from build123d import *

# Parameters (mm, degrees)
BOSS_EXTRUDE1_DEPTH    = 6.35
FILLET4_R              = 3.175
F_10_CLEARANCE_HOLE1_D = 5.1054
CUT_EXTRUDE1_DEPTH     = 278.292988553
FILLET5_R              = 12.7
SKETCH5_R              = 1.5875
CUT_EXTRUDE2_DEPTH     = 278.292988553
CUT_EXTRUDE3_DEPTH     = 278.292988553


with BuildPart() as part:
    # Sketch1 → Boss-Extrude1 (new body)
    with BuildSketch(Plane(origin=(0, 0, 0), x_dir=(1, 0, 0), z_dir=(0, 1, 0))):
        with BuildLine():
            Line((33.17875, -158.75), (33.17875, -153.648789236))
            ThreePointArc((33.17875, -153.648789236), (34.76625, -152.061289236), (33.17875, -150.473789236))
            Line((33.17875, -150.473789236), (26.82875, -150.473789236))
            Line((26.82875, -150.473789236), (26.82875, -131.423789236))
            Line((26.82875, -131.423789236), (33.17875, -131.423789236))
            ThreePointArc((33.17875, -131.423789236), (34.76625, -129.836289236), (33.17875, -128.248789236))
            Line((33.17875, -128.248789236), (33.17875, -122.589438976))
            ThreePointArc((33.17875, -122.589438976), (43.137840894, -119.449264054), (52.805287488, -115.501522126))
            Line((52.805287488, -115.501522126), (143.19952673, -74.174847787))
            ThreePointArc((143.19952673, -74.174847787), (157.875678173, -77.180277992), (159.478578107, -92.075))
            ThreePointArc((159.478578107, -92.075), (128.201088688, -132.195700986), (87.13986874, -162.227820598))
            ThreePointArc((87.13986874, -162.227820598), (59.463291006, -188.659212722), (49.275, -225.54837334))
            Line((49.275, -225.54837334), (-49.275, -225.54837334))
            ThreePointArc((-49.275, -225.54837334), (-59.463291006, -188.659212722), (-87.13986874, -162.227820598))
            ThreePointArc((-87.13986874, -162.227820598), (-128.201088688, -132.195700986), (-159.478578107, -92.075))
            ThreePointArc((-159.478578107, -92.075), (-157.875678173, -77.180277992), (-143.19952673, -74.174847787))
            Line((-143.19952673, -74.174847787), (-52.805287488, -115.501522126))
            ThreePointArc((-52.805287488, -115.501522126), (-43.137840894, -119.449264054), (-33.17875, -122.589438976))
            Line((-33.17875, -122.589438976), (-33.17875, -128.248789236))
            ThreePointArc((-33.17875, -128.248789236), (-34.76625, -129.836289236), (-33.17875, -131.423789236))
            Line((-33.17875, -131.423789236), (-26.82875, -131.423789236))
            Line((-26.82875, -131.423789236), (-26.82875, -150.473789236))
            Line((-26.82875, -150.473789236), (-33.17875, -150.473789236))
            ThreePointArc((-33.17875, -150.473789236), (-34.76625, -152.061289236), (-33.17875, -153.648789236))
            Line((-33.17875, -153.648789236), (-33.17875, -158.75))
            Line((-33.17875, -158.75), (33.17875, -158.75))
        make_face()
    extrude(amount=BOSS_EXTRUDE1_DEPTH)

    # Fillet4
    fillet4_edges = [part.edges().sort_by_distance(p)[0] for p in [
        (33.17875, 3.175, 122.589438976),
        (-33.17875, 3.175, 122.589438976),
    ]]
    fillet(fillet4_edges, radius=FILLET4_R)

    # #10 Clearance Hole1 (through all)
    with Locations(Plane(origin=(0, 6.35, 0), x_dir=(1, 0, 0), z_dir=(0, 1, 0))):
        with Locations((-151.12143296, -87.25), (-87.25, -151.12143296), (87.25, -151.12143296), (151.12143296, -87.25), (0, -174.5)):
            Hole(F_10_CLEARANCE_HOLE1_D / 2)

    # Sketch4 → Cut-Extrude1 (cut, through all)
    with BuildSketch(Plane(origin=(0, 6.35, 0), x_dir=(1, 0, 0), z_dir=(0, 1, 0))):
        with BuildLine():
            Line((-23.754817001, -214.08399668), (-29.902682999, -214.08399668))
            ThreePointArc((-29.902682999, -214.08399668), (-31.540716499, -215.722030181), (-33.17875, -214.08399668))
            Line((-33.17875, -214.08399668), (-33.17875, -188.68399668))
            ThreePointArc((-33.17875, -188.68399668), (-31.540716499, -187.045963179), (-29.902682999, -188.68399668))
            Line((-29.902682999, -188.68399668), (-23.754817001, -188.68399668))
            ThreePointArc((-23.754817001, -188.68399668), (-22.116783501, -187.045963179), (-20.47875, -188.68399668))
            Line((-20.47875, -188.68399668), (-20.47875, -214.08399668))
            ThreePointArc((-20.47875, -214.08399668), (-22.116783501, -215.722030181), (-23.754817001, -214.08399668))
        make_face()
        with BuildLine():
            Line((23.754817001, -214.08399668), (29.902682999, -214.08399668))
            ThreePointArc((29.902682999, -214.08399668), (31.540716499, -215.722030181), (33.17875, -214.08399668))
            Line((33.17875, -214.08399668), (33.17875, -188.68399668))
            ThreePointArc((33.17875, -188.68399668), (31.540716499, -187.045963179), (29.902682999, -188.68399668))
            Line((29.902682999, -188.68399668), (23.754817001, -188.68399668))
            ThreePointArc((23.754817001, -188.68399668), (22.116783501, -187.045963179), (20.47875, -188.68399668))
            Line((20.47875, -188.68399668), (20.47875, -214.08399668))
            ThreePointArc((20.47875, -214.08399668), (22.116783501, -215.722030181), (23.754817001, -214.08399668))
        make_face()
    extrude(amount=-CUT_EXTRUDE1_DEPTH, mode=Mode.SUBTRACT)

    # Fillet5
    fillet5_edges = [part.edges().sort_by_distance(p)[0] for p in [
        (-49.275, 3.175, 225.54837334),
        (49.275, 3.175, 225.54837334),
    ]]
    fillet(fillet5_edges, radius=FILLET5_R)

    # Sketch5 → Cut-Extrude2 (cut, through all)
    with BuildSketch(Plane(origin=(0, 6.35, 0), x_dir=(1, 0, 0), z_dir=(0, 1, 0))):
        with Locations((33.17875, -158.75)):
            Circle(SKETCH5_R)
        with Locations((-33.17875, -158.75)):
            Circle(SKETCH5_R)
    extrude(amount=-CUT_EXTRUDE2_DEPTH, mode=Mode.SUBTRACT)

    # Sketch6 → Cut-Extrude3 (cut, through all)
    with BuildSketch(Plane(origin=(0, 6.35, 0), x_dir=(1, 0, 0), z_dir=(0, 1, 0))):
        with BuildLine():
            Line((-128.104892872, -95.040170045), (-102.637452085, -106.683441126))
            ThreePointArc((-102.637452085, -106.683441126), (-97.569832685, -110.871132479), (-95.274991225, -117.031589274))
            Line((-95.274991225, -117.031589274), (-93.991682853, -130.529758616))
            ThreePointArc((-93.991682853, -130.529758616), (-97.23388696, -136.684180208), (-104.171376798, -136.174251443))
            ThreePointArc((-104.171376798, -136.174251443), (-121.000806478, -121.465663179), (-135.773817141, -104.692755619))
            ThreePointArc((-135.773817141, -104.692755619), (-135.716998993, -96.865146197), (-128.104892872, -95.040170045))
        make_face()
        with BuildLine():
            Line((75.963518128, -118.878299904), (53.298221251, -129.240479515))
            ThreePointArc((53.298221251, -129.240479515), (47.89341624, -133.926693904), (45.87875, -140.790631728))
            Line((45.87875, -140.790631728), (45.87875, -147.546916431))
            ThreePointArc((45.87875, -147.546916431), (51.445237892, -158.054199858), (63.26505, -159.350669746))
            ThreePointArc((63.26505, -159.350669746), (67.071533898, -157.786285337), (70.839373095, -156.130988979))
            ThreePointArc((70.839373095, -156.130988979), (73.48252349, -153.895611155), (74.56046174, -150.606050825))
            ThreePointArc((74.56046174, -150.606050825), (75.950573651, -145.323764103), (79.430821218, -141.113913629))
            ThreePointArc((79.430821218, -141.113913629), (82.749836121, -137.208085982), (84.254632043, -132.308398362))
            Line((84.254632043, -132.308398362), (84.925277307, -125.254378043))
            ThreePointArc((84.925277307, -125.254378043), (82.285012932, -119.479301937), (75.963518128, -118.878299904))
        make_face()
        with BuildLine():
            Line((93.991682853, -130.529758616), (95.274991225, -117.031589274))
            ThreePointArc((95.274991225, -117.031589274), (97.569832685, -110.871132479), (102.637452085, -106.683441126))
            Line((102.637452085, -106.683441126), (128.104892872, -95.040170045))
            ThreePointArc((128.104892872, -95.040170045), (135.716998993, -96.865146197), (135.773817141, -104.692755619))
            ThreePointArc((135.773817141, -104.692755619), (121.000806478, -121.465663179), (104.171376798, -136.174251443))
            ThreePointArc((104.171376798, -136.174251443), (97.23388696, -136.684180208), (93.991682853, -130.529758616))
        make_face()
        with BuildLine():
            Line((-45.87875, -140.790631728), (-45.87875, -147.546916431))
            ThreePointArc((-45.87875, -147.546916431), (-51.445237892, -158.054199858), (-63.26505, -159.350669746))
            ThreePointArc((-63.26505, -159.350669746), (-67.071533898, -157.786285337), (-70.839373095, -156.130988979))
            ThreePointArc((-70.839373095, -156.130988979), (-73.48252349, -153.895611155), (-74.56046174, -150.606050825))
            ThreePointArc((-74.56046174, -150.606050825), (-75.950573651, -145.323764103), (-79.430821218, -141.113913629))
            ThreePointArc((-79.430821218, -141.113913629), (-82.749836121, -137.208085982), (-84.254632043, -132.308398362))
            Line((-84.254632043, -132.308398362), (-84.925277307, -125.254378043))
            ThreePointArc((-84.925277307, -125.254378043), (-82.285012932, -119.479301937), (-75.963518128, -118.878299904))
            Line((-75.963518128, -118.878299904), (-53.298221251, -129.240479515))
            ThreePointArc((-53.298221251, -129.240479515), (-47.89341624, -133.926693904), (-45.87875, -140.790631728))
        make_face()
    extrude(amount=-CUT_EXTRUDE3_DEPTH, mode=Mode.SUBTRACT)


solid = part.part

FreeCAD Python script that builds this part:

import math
import FreeCAD as App
import Part
import Sketcher
from FreeCAD import Vector
Q = App.Units.Quantity


def edges_at(feature, points):
    """Names of the edges that pass closest to the given points."""
    edges = feature.Shape.Edges
    near = lambda p: min(range(len(edges)), key=lambda i: edges[i].distToShape(Part.Vertex(*p))[0])
    return sorted({f"Edge{near(p) + 1}" for p in points})

doc = App.newDocument("Part")
body = doc.addObject("PartDesign::Body", "Body")

# Sketch on XZ plane
sketch1 = doc.addObject("Sketcher::SketchObject", "Sketch")
body.addObject(sketch1)
sketch1.AttachmentSupport = (doc.XZ_Plane, [""])
sketch1.MapMode = "FlatFace"
sketch1.addGeometry(Part.LineSegment(Vector(33.17875, 153.648789, 0), Vector(33.17875, 158.75, 0)), False)
sketch1.addGeometry(Part.LineSegment(Vector(33.17875, 158.75, 0), Vector(-33.17875, 158.75, 0)), False)
sketch1.addGeometry(Part.LineSegment(Vector(-33.17875, 158.75, 0), Vector(-33.17875, 153.648789, 0)), False)
sketch1.addGeometry(Part.ArcOfCircle(Part.Circle(Vector(-33.17875, 152.061289, 0), Vector(0, 0, 1), 1.5875), math.radians(90), math.radians(270)), False)
sketch1.addGeometry(Part.LineSegment(Vector(-33.17875, 150.473789, 0), Vector(-26.82875, 150.473789, 0)), False)
sketch1.addGeometry(Part.LineSegment(Vector(-26.82875, 150.473789, 0), Vector(-26.82875, 131.423789, 0)), False)
sketch1.addGeometry(Part.LineSegment(Vector(-26.82875, 131.423789, 0), Vector(-33.17875, 131.423789, 0)), False)
sketch1.addGeometry(Part.ArcOfCircle(Part.Circle(Vector(-33.17875, 129.836289, 0), Vector(0, 0, 1), 1.5875), math.radians(90), math.radians(270)), False)
sketch1.addGeometry(Part.LineSegment(Vector(-33.17875, 128.248789, 0), Vector(-33.17875, 122.589439, 0)), False)
sketch1.addGeometry(Part.ArcOfCircle(Part.Circle(Vector(0, 0, 0), Vector(0, 0, 1), 127), math.radians(105.144246), math.radians(114.569055)), False)
sketch1.addGeometry(Part.LineSegment(Vector(-52.805287, 115.501522, 0), Vector(-143.199527, 74.174848, 0)), False)
sketch1.addGeometry(Part.ArcOfCircle(Part.Circle(Vector(-148.480055, 85.725, 0), Vector(0, 0, 1), 12.7), math.radians(150), math.radians(294.569055)), False)
sketch1.addGeometry(Part.ArcOfCircle(Part.Circle(Vector(0, 0, 0), Vector(0, 0, 1), 184.15), math.radians(118.242248), math.radians(150)), False)
sketch1.addGeometry(Part.ArcOfCircle(Part.Circle(Vector(-121.152189, 225.548373, 0), Vector(0, 0, 1), 71.877189), math.radians(-61.757752), math.radians(0)), False)
sketch1.addGeometry(Part.LineSegment(Vector(-49.275, 225.548373, 0), Vector(49.275, 225.548373, 0)), False)
sketch1.addGeometry(Part.ArcOfCircle(Part.Circle(Vector(121.152189, 225.548373, 0), Vector(0, 0, 1), 71.877189), math.radians(180), math.radians(241.757752)), False)
sketch1.addGeometry(Part.ArcOfCircle(Part.Circle(Vector(0, 0, 0), Vector(0, 0, 1), 184.15), math.radians(30), math.radians(61.757752)), False)
sketch1.addGeometry(Part.ArcOfCircle(Part.Circle(Vector(148.480055, 85.725, 0), Vector(0, 0, 1), 12.7), math.radians(-114.569055), math.radians(30)), False)
sketch1.addGeometry(Part.LineSegment(Vector(143.199527, 74.174848, 0), Vector(52.805287, 115.501522, 0)), False)
sketch1.addGeometry(Part.ArcOfCircle(Part.Circle(Vector(0, 0, 0), Vector(0, 0, 1), 127), math.radians(65.430945), math.radians(74.855754)), False)
sketch1.addGeometry(Part.LineSegment(Vector(33.17875, 122.589439, 0), Vector(33.17875, 128.248789, 0)), False)
sketch1.addGeometry(Part.ArcOfCircle(Part.Circle(Vector(33.17875, 129.836289, 0), Vector(0, 0, 1), 1.5875), math.radians(-90), math.radians(90)), False)
sketch1.addGeometry(Part.LineSegment(Vector(33.17875, 131.423789, 0), Vector(26.82875, 131.423789, 0)), False)
sketch1.addGeometry(Part.LineSegment(Vector(26.82875, 131.423789, 0), Vector(26.82875, 150.473789, 0)), False)
sketch1.addGeometry(Part.LineSegment(Vector(26.82875, 150.473789, 0), Vector(33.17875, 150.473789, 0)), False)
sketch1.addGeometry(Part.ArcOfCircle(Part.Circle(Vector(33.17875, 152.061289, 0), Vector(0, 0, 1), 1.5875), math.radians(-90), math.radians(90)), False)
sketch1.addConstraint(Sketcher.Constraint("Coincident", 0, 2, 1, 1))
sketch1.addConstraint(Sketcher.Constraint("Coincident", 1, 2, 2, 1))
sketch1.addConstraint(Sketcher.Constraint("Coincident", 2, 2, 3, 1))
sketch1.addConstraint(Sketcher.Constraint("Tangent", 3, 2, 4, 1))
sketch1.addConstraint(Sketcher.Constraint("Coincident", 4, 2, 5, 1))
sketch1.addConstraint(Sketcher.Constraint("Coincident", 5, 2, 6, 1))
sketch1.addConstraint(Sketcher.Constraint("Tangent", 6, 2, 7, 1))
sketch1.addConstraint(Sketcher.Constraint("Coincident", 7, 2, 8, 1))
sketch1.addConstraint(Sketcher.Constraint("Coincident", 8, 2, 9, 1))
sketch1.addConstraint(Sketcher.Constraint("Tangent", 9, 2, 10, 1))
sketch1.addConstraint(Sketcher.Constraint("Tangent", 10, 2, 11, 2))
sketch1.addConstraint(Sketcher.Constraint("Tangent", 11, 1, 12, 2))
sketch1.addConstraint(Sketcher.Constraint("Tangent", 12, 1, 13, 1))
sketch1.addConstraint(Sketcher.Constraint("Coincident", 13, 2, 14, 1))
sketch1.addConstraint(Sketcher.Constraint("Coincident", 14, 2, 15, 1))
sketch1.addConstraint(Sketcher.Constraint("Tangent", 15, 2, 16, 2))
sketch1.addConstraint(Sketcher.Constraint("Tangent", 16, 1, 17, 2))
sketch1.addConstraint(Sketcher.Constraint("Tangent", 17, 1, 18, 1))
sketch1.addConstraint(Sketcher.Constraint("Tangent", 18, 2, 19, 1))
sketch1.addConstraint(Sketcher.Constraint("Coincident", 19, 2, 20, 1))
sketch1.addConstraint(Sketcher.Constraint("Coincident", 20, 2, 21, 1))
sketch1.addConstraint(Sketcher.Constraint("Tangent", 21, 2, 22, 1))
sketch1.addConstraint(Sketcher.Constraint("Coincident", 22, 2, 23, 1))
sketch1.addConstraint(Sketcher.Constraint("Coincident", 23, 2, 24, 1))
sketch1.addConstraint(Sketcher.Constraint("Tangent", 24, 2, 25, 1))
sketch1.addConstraint(Sketcher.Constraint("Coincident", 25, 2, 0, 1))
sketch1.addConstraint(Sketcher.Constraint("Vertical", 0))
sketch1.addConstraint(Sketcher.Constraint("Horizontal", 1))
sketch1.addConstraint(Sketcher.Constraint("Vertical", 2))
sketch1.addConstraint(Sketcher.Constraint("Horizontal", 4))
sketch1.addConstraint(Sketcher.Constraint("Vertical", 5))
sketch1.addConstraint(Sketcher.Constraint("Horizontal", 6))
sketch1.addConstraint(Sketcher.Constraint("Vertical", 8))
sketch1.addConstraint(Sketcher.Constraint("Horizontal", 14))
sketch1.addConstraint(Sketcher.Constraint("Vertical", 20))
sketch1.addConstraint(Sketcher.Constraint("Horizontal", 22))
sketch1.addConstraint(Sketcher.Constraint("Vertical", 23))
sketch1.addConstraint(Sketcher.Constraint("Horizontal", 24))
sketch1.addConstraint(Sketcher.Constraint("Coincident", 9, 3, -1, 1))
sketch1.addConstraint(Sketcher.Constraint("Coincident", 12, 3, -1, 1))
sketch1.addConstraint(Sketcher.Constraint("Coincident", 16, 3, -1, 1))
sketch1.addConstraint(Sketcher.Constraint("Coincident", 19, 3, -1, 1))
sketch1.addConstraint(Sketcher.Constraint("Equal", 3, 7))
sketch1.addConstraint(Sketcher.Constraint("Equal", 13, 15))
sketch1.addConstraint(Sketcher.Constraint("Equal", 12, 16))
sketch1.addConstraint(Sketcher.Constraint("Equal", 11, 17))
sketch1.addConstraint(Sketcher.Constraint("Equal", 9, 19))
sketch1.addConstraint(Sketcher.Constraint("Equal", 7, 21))
sketch1.addConstraint(Sketcher.Constraint("Equal", 21, 25))
sketch1.addConstraint(Sketcher.Constraint("Symmetric", 7, 3, 21, 3, -2))
sketch1.addConstraint(Sketcher.Constraint("Symmetric", 3, 3, 25, 3, -2))
sketch1.addConstraint(Sketcher.Constraint("Horizontal", 13, 3, 15, 3))
sketch1.addConstraint(Sketcher.Constraint("Horizontal", 11, 3, 17, 3))
sketch1.addConstraint(Sketcher.Constraint("Horizontal", 15, 3, 13, 2))
sketch1.addConstraint(Sketcher.Constraint("Horizontal", 8, 2, 19, 2))
sketch1.addConstraint(Sketcher.Constraint("Vertical", 3, 3, 7, 3))
sketch1.addConstraint(Sketcher.Constraint("Vertical", 25, 3, 0, 2))
sketch1.addConstraint(Sketcher.Constraint("Vertical", 7, 3, 1, 2))
sketch1.addConstraint(Sketcher.Constraint("Vertical", 6, 2, 7, 2))
sketch1.addConstraint(Sketcher.Constraint("Equal", 6, 22))
sketch1.addConstraint(Sketcher.Constraint("Radius", 9, Q("5 in")))
sketch1.addConstraint(Sketcher.Constraint("Radius", 11, Q("0.5 in")))
sketch1.addConstraint(Sketcher.Constraint("Radius", 12, Q("7.25 in")))
sketch1.addConstraint(Sketcher.Constraint("Radius", 3, Q("0.0625 in")))
sketch1.addConstraint(Sketcher.Constraint("DistanceX", 4, 1, 4, 2, Q("0.25 in")))
sketch1.addConstraint(Sketcher.Constraint("DistanceY", 5, 2, 5, 1, Q("0.75 in")))
sketch1.addConstraint(Sketcher.Constraint("DistanceY", -1, 1, 0, 2, Q("6.25 in")))
sketch1.addConstraint(Sketcher.Constraint("DistanceY", 11, 3, 11, 1, Q("0.25 in")))
sketch1.addConstraint(Sketcher.Constraint("DistanceX", 1, 2, 1, 1, Q("2.6125 in")))
sketch1.addConstraint(Sketcher.Constraint("Radius", 13, Q("71.877189 mm")))
sketch1.addConstraint(Sketcher.Constraint("DistanceX", 14, 1, 14, 2, Q("98.55 mm")))
sketch1.addConstraint(Sketcher.Constraint("DistanceY", 0, 1, 0, 2, Q("5.101211 mm")))
pad1 = doc.addObject("PartDesign::Pad", "Pad")
body.addObject(pad1)
pad1.Profile = sketch1
pad1.Length = Q("0.25 in")
pad1.Reversed = True
doc.recompute()

fillet = doc.addObject("PartDesign::Fillet", "Fillet")
body.addObject(fillet)
fillet.Base = (pad1, edges_at(pad1, [(33.179, 3.175, 122.589), (-33.179, 3.175, 122.589)]))
fillet.Radius = Q("0.125 in")

# Sketch on XZ plane
sketch2 = doc.addObject("Sketcher::SketchObject", "Sketch001")
body.addObject(sketch2)
sketch2.AttachmentSupport = (doc.XZ_Plane, [""])
sketch2.MapMode = "FlatFace"
sketch2.AttachmentOffset = App.Placement(Vector(0, 0, -0.25 * 25.4), App.Rotation())
sketch2.addGeometry(Part.Circle(Vector(-151.121433, 87.25, 0), Vector(0, 0, 1), 2.5527), False)
sketch2.addGeometry(Part.Circle(Vector(-87.25, 151.121433, 0), Vector(0, 0, 1), 2.5527), False)
sketch2.addGeometry(Part.Circle(Vector(87.25, 151.121433, 0), Vector(0, 0, 1), 2.5527), False)
sketch2.addGeometry(Part.Circle(Vector(151.121433, 87.25, 0), Vector(0, 0, 1), 2.5527), False)
sketch2.addGeometry(Part.Circle(Vector(0, 174.5, 0), Vector(0, 0, 1), 2.5527), False)
sketch2.addConstraint(Sketcher.Constraint("Equal", 0, 1))
sketch2.addConstraint(Sketcher.Constraint("Equal", 1, 2))
sketch2.addConstraint(Sketcher.Constraint("Equal", 2, 3))
sketch2.addConstraint(Sketcher.Constraint("Equal", 3, 4))
sketch2.addConstraint(Sketcher.Constraint("Symmetric", 1, 3, 2, 3, -2))
sketch2.addConstraint(Sketcher.Constraint("Symmetric", 0, 3, 3, 3, -2))
sketch2.addConstraint(Sketcher.Constraint("PointOnObject", 4, 3, -2))
sketch2.addConstraint(Sketcher.Constraint("Diameter", 0, Q("0.201 in")))
sketch2.addConstraint(Sketcher.Constraint("DistanceY", -1, 1, 0, 3, Q("87.25 mm")))
sketch2.addConstraint(Sketcher.Constraint("DistanceX", 1, 3, -1, 1, Q("87.25 mm")))
sketch2.addConstraint(Sketcher.Constraint("DistanceY", -1, 1, 4, 3, Q("174.5 mm")))
sketch2.addConstraint(Sketcher.Constraint("DistanceX", 0, 3, -1, 1, Q("151.121433 mm")))
sketch2.addConstraint(Sketcher.Constraint("DistanceY", -1, 1, 1, 3, Q("151.121433 mm")))
doc.recompute()
hole = doc.addObject("PartDesign::Hole", "Hole")
body.addObject(hole)
hole.Profile = sketch2
hole.ThreadType = "None"
hole.Diameter = Q("0.201 in")
hole.DepthType = "ThroughAll"
hole.Reversed = True

# Sketch on XZ plane
sketch3 = doc.addObject("Sketcher::SketchObject", "Sketch002")
body.addObject(sketch3)
sketch3.AttachmentSupport = (doc.XZ_Plane, [""])
sketch3.MapMode = "FlatFace"
sketch3.AttachmentOffset = App.Placement(Vector(0, 0, -0.25 * 25.4), App.Rotation())
sketch3.addGeometry(Part.LineSegment(Vector(-29.902683, 214.083997, 0), Vector(-23.754817, 214.083997, 0)), False)
sketch3.addGeometry(Part.ArcOfCircle(Part.Circle(Vector(-22.116784, 214.083997, 0), Vector(0, 0, 1), 1.638033), math.radians(0), math.radians(180)), False)
sketch3.addGeometry(Part.LineSegment(Vector(-20.47875, 214.083997, 0), Vector(-20.47875, 188.683997, 0)), False)
sketch3.addGeometry(Part.ArcOfCircle(Part.Circle(Vector(-22.116784, 188.683997, 0), Vector(0, 0, 1), 1.638033), math.radians(180), math.radians(360)), False)
sketch3.addGeometry(Part.LineSegment(Vector(-23.754817, 188.683997, 0), Vector(-29.902683, 188.683997, 0)), False)
sketch3.addGeometry(Part.ArcOfCircle(Part.Circle(Vector(-31.540716, 188.683997, 0), Vector(0, 0, 1), 1.638034), math.radians(180), math.radians(360)), False)
sketch3.addGeometry(Part.LineSegment(Vector(-33.17875, 188.683997, 0), Vector(-33.17875, 214.083997, 0)), False)
sketch3.addGeometry(Part.ArcOfCircle(Part.Circle(Vector(-31.540716, 214.083997, 0), Vector(0, 0, 1), 1.638034), math.radians(0), math.radians(180)), False)
sketch3.addGeometry(Part.LineSegment(Vector(23.754817, 214.083997, 0), Vector(29.902683, 214.083997, 0)), False)
sketch3.addGeometry(Part.ArcOfCircle(Part.Circle(Vector(31.540716, 214.083997, 0), Vector(0, 0, 1), 1.638034), math.radians(0), math.radians(180)), False)
sketch3.addGeometry(Part.LineSegment(Vector(33.17875, 214.083997, 0), Vector(33.17875, 188.683997, 0)), False)
sketch3.addGeometry(Part.ArcOfCircle(Part.Circle(Vector(31.540716, 188.683997, 0), Vector(0, 0, 1), 1.638034), math.radians(180), math.radians(360)), False)
sketch3.addGeometry(Part.LineSegment(Vector(29.902683, 188.683997, 0), Vector(23.754817, 188.683997, 0)), False)
sketch3.addGeometry(Part.ArcOfCircle(Part.Circle(Vector(22.116784, 188.683997, 0), Vector(0, 0, 1), 1.638033), math.radians(180), math.radians(360)), False)
sketch3.addGeometry(Part.LineSegment(Vector(20.47875, 188.683997, 0), Vector(20.47875, 214.083997, 0)), False)
sketch3.addGeometry(Part.ArcOfCircle(Part.Circle(Vector(22.116784, 214.083997, 0), Vector(0, 0, 1), 1.638033), math.radians(0), math.radians(180)), False)
sketch3.addConstraint(Sketcher.Constraint("Coincident", 0, 2, 1, 2))
sketch3.addConstraint(Sketcher.Constraint("Tangent", 1, 1, 2, 1))
sketch3.addConstraint(Sketcher.Constraint("Tangent", 2, 2, 3, 2))
sketch3.addConstraint(Sketcher.Constraint("Coincident", 3, 1, 4, 1))
sketch3.addConstraint(Sketcher.Constraint("Coincident", 4, 2, 5, 2))
sketch3.addConstraint(Sketcher.Constraint("Tangent", 5, 1, 6, 1))
sketch3.addConstraint(Sketcher.Constraint("Tangent", 6, 2, 7, 2))
sketch3.addConstraint(Sketcher.Constraint("Coincident", 7, 1, 0, 1))
sketch3.addConstraint(Sketcher.Constraint("Coincident", 8, 2, 9, 2))
sketch3.addConstraint(Sketcher.Constraint("Tangent", 9, 1, 10, 1))
sketch3.addConstraint(Sketcher.Constraint("Tangent", 10, 2, 11, 2))
sketch3.addConstraint(Sketcher.Constraint("Coincident", 11, 1, 12, 1))
sketch3.addConstraint(Sketcher.Constraint("Coincident", 12, 2, 13, 2))
sketch3.addConstraint(Sketcher.Constraint("Tangent", 13, 1, 14, 1))
sketch3.addConstraint(Sketcher.Constraint("Tangent", 14, 2, 15, 2))
sketch3.addConstraint(Sketcher.Constraint("Coincident", 15, 1, 8, 1))
sketch3.addConstraint(Sketcher.Constraint("Horizontal", 0))
sketch3.addConstraint(Sketcher.Constraint("Vertical", 2))
sketch3.addConstraint(Sketcher.Constraint("Horizontal", 4))
sketch3.addConstraint(Sketcher.Constraint("Vertical", 6))
sketch3.addConstraint(Sketcher.Constraint("Horizontal", 8))
sketch3.addConstraint(Sketcher.Constraint("Vertical", 10))
sketch3.addConstraint(Sketcher.Constraint("Horizontal", 12))
sketch3.addConstraint(Sketcher.Constraint("Vertical", 14))
sketch3.addConstraint(Sketcher.Constraint("Equal", 1, 3))
sketch3.addConstraint(Sketcher.Constraint("Equal", 3, 5))
sketch3.addConstraint(Sketcher.Constraint("Equal", 5, 7))
sketch3.addConstraint(Sketcher.Constraint("Equal", 7, 9))
sketch3.addConstraint(Sketcher.Constraint("Equal", 9, 11))
sketch3.addConstraint(Sketcher.Constraint("Equal", 11, 13))
sketch3.addConstraint(Sketcher.Constraint("Equal", 13, 15))
sketch3.addConstraint(Sketcher.Constraint("Symmetric", 7, 3, 9, 3, -2))
sketch3.addConstraint(Sketcher.Constraint("Symmetric", 3, 3, 13, 3, -2))
sketch3.addConstraint(Sketcher.Constraint("Horizontal", 3, 3, 5, 3))
sketch3.addConstraint(Sketcher.Constraint("Horizontal", 1, 3, 7, 3))
sketch3.addConstraint(Sketcher.Constraint("Horizontal", 5, 3, 11, 3))
sketch3.addConstraint(Sketcher.Constraint("Horizontal", 9, 3, 15, 3))
sketch3.addConstraint(Sketcher.Constraint("Horizontal", 15, 3, 0, 2))
sketch3.addConstraint(Sketcher.Constraint("Horizontal", 2, 2, 3, 1))
sketch3.addConstraint(Sketcher.Constraint("Horizontal", 7, 1, 8, 2))
sketch3.addConstraint(Sketcher.Constraint("Horizontal", 10, 2, 11, 1))
sketch3.addConstraint(Sketcher.Constraint("DistanceY", 2, 2, 2, 1, Q("1 in")))
sketch3.addConstraint(Sketcher.Constraint("DistanceX", 5, 1, 2, 2, Q("0.5 in")))
sketch3.addConstraint(Sketcher.Constraint("Radius", 1, Q("1.638033 mm")))
sketch3.addConstraint(Sketcher.Constraint("DistanceX", 1, 3, 9, 3, Q("2.1125 in")))
sketch3.addConstraint(Sketcher.Constraint("DistanceY", -1, 1, 1, 3, Q("214.083997 mm")))
pocket1 = doc.addObject("PartDesign::Pocket", "Pocket")
body.addObject(pocket1)
pocket1.Profile = sketch3
pocket1.Type = "ThroughAll"
pocket1.Reversed = True
doc.recompute()

fillet2 = doc.addObject("PartDesign::Fillet", "Fillet001")
body.addObject(fillet2)
fillet2.Base = (pocket1, edges_at(pocket1, [(-49.275, 3.175, 225.548), (49.275, 3.175, 225.548)]))
fillet2.Radius = Q("0.5 in")

# Sketch on XZ plane
sketch4 = doc.addObject("Sketcher::SketchObject", "Sketch003")
body.addObject(sketch4)
sketch4.AttachmentSupport = (doc.XZ_Plane, [""])
sketch4.MapMode = "FlatFace"
sketch4.AttachmentOffset = App.Placement(Vector(0, 0, -0.25 * 25.4), App.Rotation())
sketch4.addGeometry(Part.Circle(Vector(33.17875, 158.75, 0), Vector(0, 0, 1), 1.5875), False)
sketch4.addGeometry(Part.Circle(Vector(-33.17875, 158.75, 0), Vector(0, 0, 1), 1.5875), False)
sketch4.addConstraint(Sketcher.Constraint("Equal", 0, 1))
sketch4.addConstraint(Sketcher.Constraint("Symmetric", 0, 3, 1, 3, -2))
sketch4.addConstraint(Sketcher.Constraint("Diameter", 0, Q("0.125 in")))
sketch4.addConstraint(Sketcher.Constraint("DistanceY", -1, 1, 0, 3, Q("6.25 in")))
sketch4.addConstraint(Sketcher.Constraint("DistanceX", 1, 3, 0, 3, Q("2.6125 in")))
pocket2 = doc.addObject("PartDesign::Pocket", "Pocket001")
body.addObject(pocket2)
pocket2.Profile = sketch4
pocket2.Type = "ThroughAll"
pocket2.Reversed = True

# Sketch on XZ plane
sketch5 = doc.addObject("Sketcher::SketchObject", "Sketch004")
body.addObject(sketch5)
sketch5.AttachmentSupport = (doc.XZ_Plane, [""])
sketch5.MapMode = "FlatFace"
sketch5.AttachmentOffset = App.Placement(Vector(0, 0, -0.25 * 25.4), App.Rotation())
sketch5.addGeometry(Part.LineSegment(Vector(-102.637452, 106.683441, 0), Vector(-128.104893, 95.04017, 0)), False)
sketch5.addGeometry(Part.ArcOfCircle(Part.Circle(Vector(-130.745157, 100.815246, 0), Vector(0, 0, 1), 6.35), math.radians(142.364828), math.radians(294.569055)), False)
sketch5.addGeometry(Part.ArcOfCircle(Part.Circle(Vector(0, 0, 0), Vector(0, 0, 1), 171.45), math.radians(127.415478), math.radians(142.364828)), False)
sketch5.addGeometry(Part.ArcOfCircle(Part.Circle(Vector(-100.313178, 131.130761, 0), Vector(0, 0, 1), 6.35), math.radians(-5.430945), math.radians(127.415478)), False)
sketch5.addGeometry(Part.LineSegment(Vector(-93.991683, 130.529759, 0), Vector(-95.274991, 117.031589, 0)), False)
sketch5.addGeometry(Part.ArcOfCircle(Part.Circle(Vector(-107.917981, 118.233593, 0), Vector(0, 0, 1), 12.7), math.radians(-65.430945), math.radians(-5.430945)), False)
sketch5.addGeometry(Part.LineSegment(Vector(75.963518, 118.8783, 0), Vector(53.298221, 129.24048, 0)), False)
sketch5.addGeometry(Part.ArcOfCircle(Part.Circle(Vector(58.57875, 140.790632, 0), Vector(0, 0, 1), 12.7), math.radians(180), math.radians(245.430945)), False)
sketch5.addGeometry(Part.LineSegment(Vector(45.87875, 140.790632, 0), Vector(45.87875, 147.546916, 0)), False)
sketch5.addGeometry(Part.ArcOfCircle(Part.Circle(Vector(58.57875, 147.546916, 0), Vector(0, 0, 1), 12.7), math.radians(68.346042), math.radians(180)), False)
sketch5.addGeometry(Part.ArcOfCircle(Part.Circle(Vector(-0.000001, -0.000001, 0), Vector(0, 0, 1), 171.450001), math.radians(65.595369), math.radians(68.346042)), False)
sketch5.addGeometry(Part.ArcOfCircle(Part.Circle(Vector(68.215693, 150.34836, 0), Vector(0, 0, 1), 6.35), math.radians(2.325774), math.radians(65.595369)), False)
sketch5.addGeometry(Part.ArcOfCircle(Part.Circle(Vector(87.25, 151.121433, 0), Vector(0, 0, 1), 12.7), math.radians(-177.674226), math.radians(-128.001592)), False)
sketch5.addGeometry(Part.ArcOfCircle(Part.Circle(Vector(71.611642, 131.106394, 0), Vector(0, 0, 1), 12.7), math.radians(5.430945), math.radians(51.998408)), False)
sketch5.addGeometry(Part.LineSegment(Vector(84.254632, 132.308398, 0), Vector(84.925277, 125.254378, 0)), False)
sketch5.addGeometry(Part.ArcOfCircle(Part.Circle(Vector(78.603783, 124.653376, 0), Vector(0, 0, 1), 6.35), math.radians(-114.569055), math.radians(5.430945)), False)
sketch5.addGeometry(Part.LineSegment(Vector(95.274991, 117.031589, 0), Vector(93.991683, 130.529759, 0)), False)
sketch5.addGeometry(Part.ArcOfCircle(Part.Circle(Vector(100.313178, 131.130761, 0), Vector(0, 0, 1), 6.35), math.radians(52.584522), math.radians(185.430945)), False)
sketch5.addGeometry(Part.ArcOfCircle(Part.Circle(Vector(0, 0, 0), Vector(0, 0, 1), 171.45), math.radians(37.635172), math.radians(52.584522)), False)
sketch5.addGeometry(Part.ArcOfCircle(Part.Circle(Vector(130.745157, 100.815246, 0), Vector(0, 0, 1), 6.35), math.radians(-114.569055), math.radians(37.635172)), False)
sketch5.addGeometry(Part.LineSegment(Vector(128.104893, 95.04017, 0), Vector(102.637452, 106.683441, 0)), False)
sketch5.addGeometry(Part.ArcOfCircle(Part.Circle(Vector(107.917981, 118.233593, 0), Vector(0, 0, 1), 12.7), math.radians(-174.569055), math.radians(-114.569055)), False)
sketch5.addGeometry(Part.LineSegment(Vector(-45.87875, 147.546916, 0), Vector(-45.87875, 140.790632, 0)), False)
sketch5.addGeometry(Part.ArcOfCircle(Part.Circle(Vector(-58.57875, 140.790632, 0), Vector(0, 0, 1), 12.7), math.radians(-65.430945), math.radians(0)), False)
sketch5.addGeometry(Part.LineSegment(Vector(-53.298221, 129.24048, 0), Vector(-75.963518, 118.8783, 0)), False)
sketch5.addGeometry(Part.ArcOfCircle(Part.Circle(Vector(-78.603783, 124.653376, 0), Vector(0, 0, 1), 6.35), math.radians(174.569055), math.radians(294.569055)), False)
sketch5.addGeometry(Part.LineSegment(Vector(-84.925277, 125.254378, 0), Vector(-84.254632, 132.308398, 0)), False)
sketch5.addGeometry(Part.ArcOfCircle(Part.Circle(Vector(-71.611642, 131.106394, 0), Vector(0, 0, 1), 12.7), math.radians(128.001592), math.radians(174.569055)), False)
sketch5.addGeometry(Part.ArcOfCircle(Part.Circle(Vector(-87.25, 151.121433, 0), Vector(0, 0, 1), 12.7), math.radians(-51.998408), math.radians(-2.325774)), False)
sketch5.addGeometry(Part.ArcOfCircle(Part.Circle(Vector(-68.215693, 150.34836, 0), Vector(0, 0, 1), 6.35), math.radians(114.404631), math.radians(177.674226)), False)
sketch5.addGeometry(Part.ArcOfCircle(Part.Circle(Vector(0.000001, -0.000001, 0), Vector(0, 0, 1), 171.450001), math.radians(111.653958), math.radians(114.404631)), False)
sketch5.addGeometry(Part.ArcOfCircle(Part.Circle(Vector(-58.57875, 147.546916, 0), Vector(0, 0, 1), 12.7), math.radians(0), math.radians(111.653958)), False)
sketch5.addConstraint(Sketcher.Constraint("Tangent", 0, 2, 1, 2))
sketch5.addConstraint(Sketcher.Constraint("Tangent", 1, 1, 2, 2))
sketch5.addConstraint(Sketcher.Constraint("Tangent", 2, 1, 3, 2))
sketch5.addConstraint(Sketcher.Constraint("Tangent", 3, 1, 4, 1))
sketch5.addConstraint(Sketcher.Constraint("Tangent", 4, 2, 5, 2))
sketch5.addConstraint(Sketcher.Constraint("Tangent", 5, 1, 0, 1))
sketch5.addConstraint(Sketcher.Constraint("Tangent", 6, 2, 7, 2))
sketch5.addConstraint(Sketcher.Constraint("Tangent", 7, 1, 8, 1))
sketch5.addConstraint(Sketcher.Constraint("Tangent", 8, 2, 9, 2))
sketch5.addConstraint(Sketcher.Constraint("Tangent", 9, 1, 10, 2))
sketch5.addConstraint(Sketcher.Constraint("Tangent", 10, 1, 11, 2))
sketch5.addConstraint(Sketcher.Constraint("Tangent", 11, 1, 12, 1))
sketch5.addConstraint(Sketcher.Constraint("Tangent", 12, 2, 13, 2))
sketch5.addConstraint(Sketcher.Constraint("Tangent", 13, 1, 14, 1))
sketch5.addConstraint(Sketcher.Constraint("Tangent", 14, 2, 15, 2))
sketch5.addConstraint(Sketcher.Constraint("Tangent", 15, 1, 6, 1))
sketch5.addConstraint(Sketcher.Constraint("Tangent", 16, 2, 17, 2))
sketch5.addConstraint(Sketcher.Constraint("Tangent", 17, 1, 18, 2))
sketch5.addConstraint(Sketcher.Constraint("Tangent", 18, 1, 19, 2))
sketch5.addConstraint(Sketcher.Constraint("Tangent", 19, 1, 20, 1))
sketch5.addConstraint(Sketcher.Constraint("Tangent", 20, 2, 21, 2))
sketch5.addConstraint(Sketcher.Constraint("Tangent", 21, 1, 16, 1))
sketch5.addConstraint(Sketcher.Constraint("Tangent", 22, 2, 23, 2))
sketch5.addConstraint(Sketcher.Constraint("Tangent", 23, 1, 24, 1))
sketch5.addConstraint(Sketcher.Constraint("Tangent", 24, 2, 25, 2))
sketch5.addConstraint(Sketcher.Constraint("Tangent", 25, 1, 26, 1))
sketch5.addConstraint(Sketcher.Constraint("Tangent", 26, 2, 27, 2))
sketch5.addConstraint(Sketcher.Constraint("Tangent", 27, 1, 28, 1))
sketch5.addConstraint(Sketcher.Constraint("Tangent", 28, 2, 29, 2))
sketch5.addConstraint(Sketcher.Constraint("Tangent", 29, 1, 30, 2))
sketch5.addConstraint(Sketcher.Constraint("Tangent", 30, 1, 31, 2))
sketch5.addConstraint(Sketcher.Constraint("Tangent", 31, 1, 22, 1))
sketch5.addConstraint(Sketcher.Constraint("Vertical", 8))
sketch5.addConstraint(Sketcher.Constraint("Vertical", 22))
sketch5.addConstraint(Sketcher.Constraint("Coincident", 2, 3, -1, 1))
sketch5.addConstraint(Sketcher.Constraint("Coincident", 10, 3, -1, 1))
sketch5.addConstraint(Sketcher.Constraint("Coincident", 18, 3, -1, 1))
sketch5.addConstraint(Sketcher.Constraint("Coincident", 30, 3, -1, 1))
sketch5.addConstraint(Sketcher.Constraint("Equal", 1, 3))
sketch5.addConstraint(Sketcher.Constraint("Equal", 5, 7))
sketch5.addConstraint(Sketcher.Constraint("Equal", 7, 9))
sketch5.addConstraint(Sketcher.Constraint("Equal", 2, 10))
sketch5.addConstraint(Sketcher.Constraint("Equal", 3, 11))
sketch5.addConstraint(Sketcher.Constraint("Equal", 9, 12))
sketch5.addConstraint(Sketcher.Constraint("Equal", 12, 13))
sketch5.addConstraint(Sketcher.Constraint("Equal", 11, 15))
sketch5.addConstraint(Sketcher.Constraint("Equal", 15, 17))
sketch5.addConstraint(Sketcher.Constraint("Equal", 10, 18))
sketch5.addConstraint(Sketcher.Constraint("Equal", 17, 19))
sketch5.addConstraint(Sketcher.Constraint("Equal", 13, 21))
sketch5.addConstraint(Sketcher.Constraint("Equal", 21, 23))
sketch5.addConstraint(Sketcher.Constraint("Equal", 19, 25))
sketch5.addConstraint(Sketcher.Constraint("Equal", 23, 27))
sketch5.addConstraint(Sketcher.Constraint("Equal", 27, 28))
sketch5.addConstraint(Sketcher.Constraint("Equal", 25, 29))
sketch5.addConstraint(Sketcher.Constraint("Equal", 18, 30))
sketch5.addConstraint(Sketcher.Constraint("Equal", 28, 31))
sketch5.addConstraint(Sketcher.Constraint("Symmetric", 5, 3, 21, 3, -2))
sketch5.addConstraint(Sketcher.Constraint("Symmetric", 7, 3, 23, 3, -2))
sketch5.addConstraint(Sketcher.Constraint("Symmetric", 15, 3, 25, 3, -2))
sketch5.addConstraint(Sketcher.Constraint("Symmetric", 13, 3, 27, 3, -2))
sketch5.addConstraint(Sketcher.Constraint("Parallel", 14, 16))
sketch5.addConstraint(Sketcher.Constraint("Parallel", 6, 20))
sketch5.addConstraint(Sketcher.Constraint("Parallel", 0, 24))
sketch5.addConstraint(Sketcher.Constraint("Parallel", 4, 26))
sketch5.addConstraint(Sketcher.Constraint("Horizontal", 12, 3, 28, 3))
sketch5.addConstraint(Sketcher.Constraint("Radius", 5, Q("0.5 in")))
sketch5.addConstraint(Sketcher.Constraint("Radius", 1, Q("0.25 in")))
sketch5.addConstraint(Sketcher.Constraint("Radius", 2, Q("6.75 in")))
sketch5.addConstraint(Sketcher.Constraint("DistanceX", 12, 3, 21, 3, Q("0.8137 in")))
sketch5.addConstraint(Sketcher.Constraint("DistanceX", 23, 3, 7, 3, Q("4.6125 in")))
sketch5.addConstraint(Sketcher.Constraint("DistanceX", -1, 1, 12, 3, Q("87.25 mm")))
sketch5.addConstraint(Sketcher.Constraint("DistanceY", -1, 1, 13, 1, Q("132.308398 mm")))
sketch5.addConstraint(Sketcher.Constraint("DistanceY", -1, 1, 15, 1, Q("118.8783 mm")))
sketch5.addConstraint(Sketcher.Constraint("DistanceY", 3, 3, 11, 3, Q("19.217599 mm")))
sketch5.addConstraint(Sketcher.Constraint("DistanceY", 7, 3, 12, 3, Q("10.330801 mm")))
sketch5.addConstraint(Sketcher.Constraint("DistanceX", 15, 3, 21, 3, Q("29.314198 mm")))
sketch5.addConstraint(Sketcher.Constraint("DistanceY", 21, 3, 13, 3, Q("12.872801 mm")))
pocket3 = doc.addObject("PartDesign::Pocket", "Pocket002")
body.addObject(pocket3)
pocket3.Profile = sketch5
pocket3.Type = "ThroughAll"
pocket3.Reversed = True

doc.recompute()
